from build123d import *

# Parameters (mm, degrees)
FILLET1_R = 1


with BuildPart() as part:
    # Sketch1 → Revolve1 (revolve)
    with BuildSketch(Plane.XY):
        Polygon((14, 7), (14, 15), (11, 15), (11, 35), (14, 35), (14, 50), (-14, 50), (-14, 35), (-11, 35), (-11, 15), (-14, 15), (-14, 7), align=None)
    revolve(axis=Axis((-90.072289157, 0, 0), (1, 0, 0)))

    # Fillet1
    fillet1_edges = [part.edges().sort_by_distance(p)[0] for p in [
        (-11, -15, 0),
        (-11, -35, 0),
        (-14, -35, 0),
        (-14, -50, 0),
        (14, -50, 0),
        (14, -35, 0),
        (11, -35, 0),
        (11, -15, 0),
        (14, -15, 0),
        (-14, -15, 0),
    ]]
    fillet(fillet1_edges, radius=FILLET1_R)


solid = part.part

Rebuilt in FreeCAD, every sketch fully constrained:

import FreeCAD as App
import Part
import Sketcher
from FreeCAD import Vector


def edges_at(feature, points):
    """Names of the edges that pass closest to the given points."""
    edges = feature.Shape.Edges
    near = lambda p: min(range(len(edges)), key=lambda i: edges[i].distToShape(Part.Vertex(*p))[0])
    return sorted({f"Edge{near(p) + 1}" for p in points})

doc = App.newDocument("Part")
body = doc.addObject("PartDesign::Body", "Body")

# Sketch on XY plane
sketch1 = doc.addObject("Sketcher::SketchObject", "Sketch")
body.addObject(sketch1)
sketch1.AttachmentSupport = (doc.XY_Plane, [""])
sketch1.MapMode = "FlatFace"
sketch1.addGeometry([
    Part.LineSegment(Vector(14, 7, 0), Vector(14, 15, 0)),  # 0
    Part.LineSegment(Vector(14, 15, 0), Vector(11, 15, 0)),  # 1
    Part.LineSegment(Vector(11, 15, 0), Vector(11, 35, 0)),  # 2
    Part.LineSegment(Vector(11, 35, 0), Vector(14, 35, 0)),  # 3
    Part.LineSegment(Vector(14, 35, 0), Vector(14, 50, 0)),  # 4
    Part.LineSegment(Vector(14, 50, 0), Vector(-14, 50, 0)),  # 5
    Part.LineSegment(Vector(-14, 50, 0), Vector(-14, 35, 0)),  # 6
    Part.LineSegment(Vector(-14, 35, 0), Vector(-11, 35, 0)),  # 7
    Part.LineSegment(Vector(-11, 35, 0), Vector(-11, 15, 0)),  # 8
    Part.LineSegment(Vector(-11, 15, 0), Vector(-14, 15, 0)),  # 9
    Part.LineSegment(Vector(-14, 15, 0), Vector(-14, 7, 0)),  # 10
    Part.LineSegment(Vector(-14, 7, 0), Vector(14, 7, 0)),  # 11
], False)
sketch1.addConstraint([
    Sketcher.Constraint("Coincident", 0, 2, 1, 1),
    Sketcher.Constraint("Coincident", 1, 2, 2, 1),
    Sketcher.Constraint("Coincident", 2, 2, 3, 1),
    Sketcher.Constraint("Coincident", 3, 2, 4, 1),
    Sketcher.Constraint("Coincident", 4, 2, 5, 1),
    Sketcher.Constraint("Coincident", 5, 2, 6, 1),
    Sketcher.Constraint("Coincident", 6, 2, 7, 1),
    Sketcher.Constraint("Coincident", 7, 2, 8, 1),
    Sketcher.Constraint("Coincident", 8, 2, 9, 1),
    Sketcher.Constraint("Coincident", 9, 2, 10, 1),
    Sketcher.Constraint("Coincident", 10, 2, 11, 1),
    Sketcher.Constraint("Coincident", 11, 2, 0, 1),
    Sketcher.Constraint("Vertical", 0),
    Sketcher.Constraint("Horizontal", 1),
    Sketcher.Constraint("Vertical", 2),
    Sketcher.Constraint("Horizontal", 3),
    Sketcher.Constraint("Vertical", 4),
    Sketcher.Constraint("Horizontal", 5),
    Sketcher.Constraint("Vertical", 6),
    Sketcher.Constraint("Horizontal", 7),
    Sketcher.Constraint("Vertical", 8),
    Sketcher.Constraint("Horizontal", 9),
    Sketcher.Constraint("Vertical", 10),
    Sketcher.Constraint("Horizontal", 11),
    Sketcher.Constraint("Symmetric", 3, 2, 6, 2, -2),
    Sketcher.Constraint("Symmetric", 1, 2, 8, 2, -2),
    Sketcher.Constraint("Vertical", 0, 2, 3, 2),
    Sketcher.Constraint("Vertical", 6, 2, 9, 2),
    Sketcher.Constraint("DistanceX", 1, 2, 1, 1, 3.0),
    Sketcher.Constraint("DistanceX", 5, 2, 5, 1, 28.0),
    Sketcher.Constraint("DistanceY", 0, 1, 0, 2, 8.0),
    Sketcher.Constraint("DistanceY", 2, 1, 2, 2, 20.0),
    Sketcher.Constraint("DistanceY", 4, 1, 4, 2, 15.0),
    Sketcher.Constraint("DistanceY", -1, 1, 0, 2, 15.0),
])
revolution = doc.addObject("PartDesign::Revolution", "Revolution")
body.addObject(revolution)
revolution.Profile = sketch1
revolution.ReferenceAxis = (sketch1, ["H_Axis"])
revolution.Angle = 360
doc.recompute()

fillet = doc.addObject("PartDesign::Fillet", "Fillet")
body.addObject(fillet)
fillet.Base = (revolution, edges_at(revolution, [
    (-11, -15, 0),
    (-11, -35, 0),
    (-14, -35, 0),
    (-14, -50, 0),
    (14, -50, 0),
    (14, -35, 0),
    (11, -35, 0),
    (11, -15, 0),
    (14, -15, 0),
    (-14, -15, 0),
]))
fillet.Radius = 1

doc.recompute()
